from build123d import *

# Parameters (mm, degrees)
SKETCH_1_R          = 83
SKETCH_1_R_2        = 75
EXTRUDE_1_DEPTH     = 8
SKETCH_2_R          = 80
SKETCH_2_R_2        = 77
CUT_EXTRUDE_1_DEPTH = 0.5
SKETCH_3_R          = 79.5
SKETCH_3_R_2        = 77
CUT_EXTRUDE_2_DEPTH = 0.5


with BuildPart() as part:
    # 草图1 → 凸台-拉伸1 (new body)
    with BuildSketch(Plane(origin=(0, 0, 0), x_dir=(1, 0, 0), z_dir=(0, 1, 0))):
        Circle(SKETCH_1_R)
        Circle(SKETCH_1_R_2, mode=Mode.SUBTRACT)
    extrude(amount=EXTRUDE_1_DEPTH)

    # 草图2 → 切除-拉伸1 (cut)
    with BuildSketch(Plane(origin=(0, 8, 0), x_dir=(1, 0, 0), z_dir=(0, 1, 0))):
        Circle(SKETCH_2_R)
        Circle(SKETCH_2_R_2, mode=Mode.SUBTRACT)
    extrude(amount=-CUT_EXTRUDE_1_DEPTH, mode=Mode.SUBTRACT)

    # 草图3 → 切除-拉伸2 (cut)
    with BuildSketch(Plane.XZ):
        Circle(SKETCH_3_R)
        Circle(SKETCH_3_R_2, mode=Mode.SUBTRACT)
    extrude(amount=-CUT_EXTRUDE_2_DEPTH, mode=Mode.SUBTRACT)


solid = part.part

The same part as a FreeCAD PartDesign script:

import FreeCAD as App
import Part
import Sketcher

doc = App.newDocument("Part")
body = doc.addObject("PartDesign::Body", "Body")

sketch1 = doc.addObject("Sketcher::SketchObject", "Sketch")
body.addObject(sketch1)
sketch1.AttachmentSupport = (doc.XZ_Plane, [""])
sketch1.MapMode = "FlatFace"
sketch1.addGeometry(Part.Circle(App.Vector(0, 0, 0), App.Vector(0, 0, 1), 83), False)
sketch1.addGeometry(Part.Circle(App.Vector(0, 0, 0), App.Vector(0, 0, 1), 75), False)
sketch1.addConstraint(Sketcher.Constraint("Coincident", 0, 3, -1, 1))
sketch1.addConstraint(Sketcher.Constraint("Coincident", 1, 3, -1, 1))
sketch1.addConstraint(Sketcher.Constraint("Diameter", 0, 166.0))
sketch1.addConstraint(Sketcher.Constraint("Diameter", 1, 150.0))
pad1 = doc.addObject("PartDesign::Pad", "Pad")
body.addObject(pad1)
pad1.Profile = sketch1
pad1.Length = 8
pad1.Reversed = True

sketch2 = doc.addObject("Sketcher::SketchObject", "Sketch001")
body.addObject(sketch2)
sketch2.AttachmentSupport = (doc.XZ_Plane, [""])
sketch2.MapMode = "FlatFace"
sketch2.AttachmentOffset = App.Placement(App.Vector(0, 0, -8), App.Rotation())
sketch2.addGeometry(Part.Circle(App.Vector(0, 0, 0), App.Vector(0, 0, 1), 80), False)
sketch2.addGeometry(Part.Circle(App.Vector(0, 0, 0), App.Vector(0, 0, 1), 77), False)
sketch2.addConstraint(Sketcher.Constraint("Coincident", 0, 3, -1, 1))
sketch2.addConstraint(Sketcher.Constraint("Coincident", 1, 3, -1, 1))
sketch2.addConstraint(Sketcher.Constraint("Diameter", 0, 160.0))
sketch2.addConstraint(Sketcher.Constraint("Diameter", 1, 154.0))
pocket1 = doc.addObject("PartDesign::Pocket", "Pocket")
body.addObject(pocket1)
pocket1.Profile = sketch2
pocket1.Length = 0.5
pocket1.Reversed = True

sketch3 = doc.addObject("Sketcher::SketchObject", "Sketch002")
body.addObject(sketch3)
sketch3.AttachmentSupport = (doc.XZ_Plane, [""])
sketch3.MapMode = "FlatFace"
sketch3.addGeometry(Part.Circle(App.Vector(0, 0, 0), App.Vector(0, 0, 1), 79.5), False)
sketch3.addGeometry(Part.Circle(App.Vector(0, 0, 0), App.Vector(0, 0, 1), 77), False)
sketch3.addConstraint(Sketcher.Constraint("Coincident", 0, 3, -1, 1))
sketch3.addConstraint(Sketcher.Constraint("Coincident", 1, 3, -1, 1))
sketch3.addConstraint(Sketcher.Constraint("Diameter", 0, 159.0))
sketch3.addConstraint(Sketcher.Constraint("Diameter", 1, 154.0))
pocket2 = doc.addObject("PartDesign::Pocket", "Pocket001")
body.addObject(pocket2)
pocket2.Profile = sketch3
pocket2.Length = 0.5

doc.recompute()
